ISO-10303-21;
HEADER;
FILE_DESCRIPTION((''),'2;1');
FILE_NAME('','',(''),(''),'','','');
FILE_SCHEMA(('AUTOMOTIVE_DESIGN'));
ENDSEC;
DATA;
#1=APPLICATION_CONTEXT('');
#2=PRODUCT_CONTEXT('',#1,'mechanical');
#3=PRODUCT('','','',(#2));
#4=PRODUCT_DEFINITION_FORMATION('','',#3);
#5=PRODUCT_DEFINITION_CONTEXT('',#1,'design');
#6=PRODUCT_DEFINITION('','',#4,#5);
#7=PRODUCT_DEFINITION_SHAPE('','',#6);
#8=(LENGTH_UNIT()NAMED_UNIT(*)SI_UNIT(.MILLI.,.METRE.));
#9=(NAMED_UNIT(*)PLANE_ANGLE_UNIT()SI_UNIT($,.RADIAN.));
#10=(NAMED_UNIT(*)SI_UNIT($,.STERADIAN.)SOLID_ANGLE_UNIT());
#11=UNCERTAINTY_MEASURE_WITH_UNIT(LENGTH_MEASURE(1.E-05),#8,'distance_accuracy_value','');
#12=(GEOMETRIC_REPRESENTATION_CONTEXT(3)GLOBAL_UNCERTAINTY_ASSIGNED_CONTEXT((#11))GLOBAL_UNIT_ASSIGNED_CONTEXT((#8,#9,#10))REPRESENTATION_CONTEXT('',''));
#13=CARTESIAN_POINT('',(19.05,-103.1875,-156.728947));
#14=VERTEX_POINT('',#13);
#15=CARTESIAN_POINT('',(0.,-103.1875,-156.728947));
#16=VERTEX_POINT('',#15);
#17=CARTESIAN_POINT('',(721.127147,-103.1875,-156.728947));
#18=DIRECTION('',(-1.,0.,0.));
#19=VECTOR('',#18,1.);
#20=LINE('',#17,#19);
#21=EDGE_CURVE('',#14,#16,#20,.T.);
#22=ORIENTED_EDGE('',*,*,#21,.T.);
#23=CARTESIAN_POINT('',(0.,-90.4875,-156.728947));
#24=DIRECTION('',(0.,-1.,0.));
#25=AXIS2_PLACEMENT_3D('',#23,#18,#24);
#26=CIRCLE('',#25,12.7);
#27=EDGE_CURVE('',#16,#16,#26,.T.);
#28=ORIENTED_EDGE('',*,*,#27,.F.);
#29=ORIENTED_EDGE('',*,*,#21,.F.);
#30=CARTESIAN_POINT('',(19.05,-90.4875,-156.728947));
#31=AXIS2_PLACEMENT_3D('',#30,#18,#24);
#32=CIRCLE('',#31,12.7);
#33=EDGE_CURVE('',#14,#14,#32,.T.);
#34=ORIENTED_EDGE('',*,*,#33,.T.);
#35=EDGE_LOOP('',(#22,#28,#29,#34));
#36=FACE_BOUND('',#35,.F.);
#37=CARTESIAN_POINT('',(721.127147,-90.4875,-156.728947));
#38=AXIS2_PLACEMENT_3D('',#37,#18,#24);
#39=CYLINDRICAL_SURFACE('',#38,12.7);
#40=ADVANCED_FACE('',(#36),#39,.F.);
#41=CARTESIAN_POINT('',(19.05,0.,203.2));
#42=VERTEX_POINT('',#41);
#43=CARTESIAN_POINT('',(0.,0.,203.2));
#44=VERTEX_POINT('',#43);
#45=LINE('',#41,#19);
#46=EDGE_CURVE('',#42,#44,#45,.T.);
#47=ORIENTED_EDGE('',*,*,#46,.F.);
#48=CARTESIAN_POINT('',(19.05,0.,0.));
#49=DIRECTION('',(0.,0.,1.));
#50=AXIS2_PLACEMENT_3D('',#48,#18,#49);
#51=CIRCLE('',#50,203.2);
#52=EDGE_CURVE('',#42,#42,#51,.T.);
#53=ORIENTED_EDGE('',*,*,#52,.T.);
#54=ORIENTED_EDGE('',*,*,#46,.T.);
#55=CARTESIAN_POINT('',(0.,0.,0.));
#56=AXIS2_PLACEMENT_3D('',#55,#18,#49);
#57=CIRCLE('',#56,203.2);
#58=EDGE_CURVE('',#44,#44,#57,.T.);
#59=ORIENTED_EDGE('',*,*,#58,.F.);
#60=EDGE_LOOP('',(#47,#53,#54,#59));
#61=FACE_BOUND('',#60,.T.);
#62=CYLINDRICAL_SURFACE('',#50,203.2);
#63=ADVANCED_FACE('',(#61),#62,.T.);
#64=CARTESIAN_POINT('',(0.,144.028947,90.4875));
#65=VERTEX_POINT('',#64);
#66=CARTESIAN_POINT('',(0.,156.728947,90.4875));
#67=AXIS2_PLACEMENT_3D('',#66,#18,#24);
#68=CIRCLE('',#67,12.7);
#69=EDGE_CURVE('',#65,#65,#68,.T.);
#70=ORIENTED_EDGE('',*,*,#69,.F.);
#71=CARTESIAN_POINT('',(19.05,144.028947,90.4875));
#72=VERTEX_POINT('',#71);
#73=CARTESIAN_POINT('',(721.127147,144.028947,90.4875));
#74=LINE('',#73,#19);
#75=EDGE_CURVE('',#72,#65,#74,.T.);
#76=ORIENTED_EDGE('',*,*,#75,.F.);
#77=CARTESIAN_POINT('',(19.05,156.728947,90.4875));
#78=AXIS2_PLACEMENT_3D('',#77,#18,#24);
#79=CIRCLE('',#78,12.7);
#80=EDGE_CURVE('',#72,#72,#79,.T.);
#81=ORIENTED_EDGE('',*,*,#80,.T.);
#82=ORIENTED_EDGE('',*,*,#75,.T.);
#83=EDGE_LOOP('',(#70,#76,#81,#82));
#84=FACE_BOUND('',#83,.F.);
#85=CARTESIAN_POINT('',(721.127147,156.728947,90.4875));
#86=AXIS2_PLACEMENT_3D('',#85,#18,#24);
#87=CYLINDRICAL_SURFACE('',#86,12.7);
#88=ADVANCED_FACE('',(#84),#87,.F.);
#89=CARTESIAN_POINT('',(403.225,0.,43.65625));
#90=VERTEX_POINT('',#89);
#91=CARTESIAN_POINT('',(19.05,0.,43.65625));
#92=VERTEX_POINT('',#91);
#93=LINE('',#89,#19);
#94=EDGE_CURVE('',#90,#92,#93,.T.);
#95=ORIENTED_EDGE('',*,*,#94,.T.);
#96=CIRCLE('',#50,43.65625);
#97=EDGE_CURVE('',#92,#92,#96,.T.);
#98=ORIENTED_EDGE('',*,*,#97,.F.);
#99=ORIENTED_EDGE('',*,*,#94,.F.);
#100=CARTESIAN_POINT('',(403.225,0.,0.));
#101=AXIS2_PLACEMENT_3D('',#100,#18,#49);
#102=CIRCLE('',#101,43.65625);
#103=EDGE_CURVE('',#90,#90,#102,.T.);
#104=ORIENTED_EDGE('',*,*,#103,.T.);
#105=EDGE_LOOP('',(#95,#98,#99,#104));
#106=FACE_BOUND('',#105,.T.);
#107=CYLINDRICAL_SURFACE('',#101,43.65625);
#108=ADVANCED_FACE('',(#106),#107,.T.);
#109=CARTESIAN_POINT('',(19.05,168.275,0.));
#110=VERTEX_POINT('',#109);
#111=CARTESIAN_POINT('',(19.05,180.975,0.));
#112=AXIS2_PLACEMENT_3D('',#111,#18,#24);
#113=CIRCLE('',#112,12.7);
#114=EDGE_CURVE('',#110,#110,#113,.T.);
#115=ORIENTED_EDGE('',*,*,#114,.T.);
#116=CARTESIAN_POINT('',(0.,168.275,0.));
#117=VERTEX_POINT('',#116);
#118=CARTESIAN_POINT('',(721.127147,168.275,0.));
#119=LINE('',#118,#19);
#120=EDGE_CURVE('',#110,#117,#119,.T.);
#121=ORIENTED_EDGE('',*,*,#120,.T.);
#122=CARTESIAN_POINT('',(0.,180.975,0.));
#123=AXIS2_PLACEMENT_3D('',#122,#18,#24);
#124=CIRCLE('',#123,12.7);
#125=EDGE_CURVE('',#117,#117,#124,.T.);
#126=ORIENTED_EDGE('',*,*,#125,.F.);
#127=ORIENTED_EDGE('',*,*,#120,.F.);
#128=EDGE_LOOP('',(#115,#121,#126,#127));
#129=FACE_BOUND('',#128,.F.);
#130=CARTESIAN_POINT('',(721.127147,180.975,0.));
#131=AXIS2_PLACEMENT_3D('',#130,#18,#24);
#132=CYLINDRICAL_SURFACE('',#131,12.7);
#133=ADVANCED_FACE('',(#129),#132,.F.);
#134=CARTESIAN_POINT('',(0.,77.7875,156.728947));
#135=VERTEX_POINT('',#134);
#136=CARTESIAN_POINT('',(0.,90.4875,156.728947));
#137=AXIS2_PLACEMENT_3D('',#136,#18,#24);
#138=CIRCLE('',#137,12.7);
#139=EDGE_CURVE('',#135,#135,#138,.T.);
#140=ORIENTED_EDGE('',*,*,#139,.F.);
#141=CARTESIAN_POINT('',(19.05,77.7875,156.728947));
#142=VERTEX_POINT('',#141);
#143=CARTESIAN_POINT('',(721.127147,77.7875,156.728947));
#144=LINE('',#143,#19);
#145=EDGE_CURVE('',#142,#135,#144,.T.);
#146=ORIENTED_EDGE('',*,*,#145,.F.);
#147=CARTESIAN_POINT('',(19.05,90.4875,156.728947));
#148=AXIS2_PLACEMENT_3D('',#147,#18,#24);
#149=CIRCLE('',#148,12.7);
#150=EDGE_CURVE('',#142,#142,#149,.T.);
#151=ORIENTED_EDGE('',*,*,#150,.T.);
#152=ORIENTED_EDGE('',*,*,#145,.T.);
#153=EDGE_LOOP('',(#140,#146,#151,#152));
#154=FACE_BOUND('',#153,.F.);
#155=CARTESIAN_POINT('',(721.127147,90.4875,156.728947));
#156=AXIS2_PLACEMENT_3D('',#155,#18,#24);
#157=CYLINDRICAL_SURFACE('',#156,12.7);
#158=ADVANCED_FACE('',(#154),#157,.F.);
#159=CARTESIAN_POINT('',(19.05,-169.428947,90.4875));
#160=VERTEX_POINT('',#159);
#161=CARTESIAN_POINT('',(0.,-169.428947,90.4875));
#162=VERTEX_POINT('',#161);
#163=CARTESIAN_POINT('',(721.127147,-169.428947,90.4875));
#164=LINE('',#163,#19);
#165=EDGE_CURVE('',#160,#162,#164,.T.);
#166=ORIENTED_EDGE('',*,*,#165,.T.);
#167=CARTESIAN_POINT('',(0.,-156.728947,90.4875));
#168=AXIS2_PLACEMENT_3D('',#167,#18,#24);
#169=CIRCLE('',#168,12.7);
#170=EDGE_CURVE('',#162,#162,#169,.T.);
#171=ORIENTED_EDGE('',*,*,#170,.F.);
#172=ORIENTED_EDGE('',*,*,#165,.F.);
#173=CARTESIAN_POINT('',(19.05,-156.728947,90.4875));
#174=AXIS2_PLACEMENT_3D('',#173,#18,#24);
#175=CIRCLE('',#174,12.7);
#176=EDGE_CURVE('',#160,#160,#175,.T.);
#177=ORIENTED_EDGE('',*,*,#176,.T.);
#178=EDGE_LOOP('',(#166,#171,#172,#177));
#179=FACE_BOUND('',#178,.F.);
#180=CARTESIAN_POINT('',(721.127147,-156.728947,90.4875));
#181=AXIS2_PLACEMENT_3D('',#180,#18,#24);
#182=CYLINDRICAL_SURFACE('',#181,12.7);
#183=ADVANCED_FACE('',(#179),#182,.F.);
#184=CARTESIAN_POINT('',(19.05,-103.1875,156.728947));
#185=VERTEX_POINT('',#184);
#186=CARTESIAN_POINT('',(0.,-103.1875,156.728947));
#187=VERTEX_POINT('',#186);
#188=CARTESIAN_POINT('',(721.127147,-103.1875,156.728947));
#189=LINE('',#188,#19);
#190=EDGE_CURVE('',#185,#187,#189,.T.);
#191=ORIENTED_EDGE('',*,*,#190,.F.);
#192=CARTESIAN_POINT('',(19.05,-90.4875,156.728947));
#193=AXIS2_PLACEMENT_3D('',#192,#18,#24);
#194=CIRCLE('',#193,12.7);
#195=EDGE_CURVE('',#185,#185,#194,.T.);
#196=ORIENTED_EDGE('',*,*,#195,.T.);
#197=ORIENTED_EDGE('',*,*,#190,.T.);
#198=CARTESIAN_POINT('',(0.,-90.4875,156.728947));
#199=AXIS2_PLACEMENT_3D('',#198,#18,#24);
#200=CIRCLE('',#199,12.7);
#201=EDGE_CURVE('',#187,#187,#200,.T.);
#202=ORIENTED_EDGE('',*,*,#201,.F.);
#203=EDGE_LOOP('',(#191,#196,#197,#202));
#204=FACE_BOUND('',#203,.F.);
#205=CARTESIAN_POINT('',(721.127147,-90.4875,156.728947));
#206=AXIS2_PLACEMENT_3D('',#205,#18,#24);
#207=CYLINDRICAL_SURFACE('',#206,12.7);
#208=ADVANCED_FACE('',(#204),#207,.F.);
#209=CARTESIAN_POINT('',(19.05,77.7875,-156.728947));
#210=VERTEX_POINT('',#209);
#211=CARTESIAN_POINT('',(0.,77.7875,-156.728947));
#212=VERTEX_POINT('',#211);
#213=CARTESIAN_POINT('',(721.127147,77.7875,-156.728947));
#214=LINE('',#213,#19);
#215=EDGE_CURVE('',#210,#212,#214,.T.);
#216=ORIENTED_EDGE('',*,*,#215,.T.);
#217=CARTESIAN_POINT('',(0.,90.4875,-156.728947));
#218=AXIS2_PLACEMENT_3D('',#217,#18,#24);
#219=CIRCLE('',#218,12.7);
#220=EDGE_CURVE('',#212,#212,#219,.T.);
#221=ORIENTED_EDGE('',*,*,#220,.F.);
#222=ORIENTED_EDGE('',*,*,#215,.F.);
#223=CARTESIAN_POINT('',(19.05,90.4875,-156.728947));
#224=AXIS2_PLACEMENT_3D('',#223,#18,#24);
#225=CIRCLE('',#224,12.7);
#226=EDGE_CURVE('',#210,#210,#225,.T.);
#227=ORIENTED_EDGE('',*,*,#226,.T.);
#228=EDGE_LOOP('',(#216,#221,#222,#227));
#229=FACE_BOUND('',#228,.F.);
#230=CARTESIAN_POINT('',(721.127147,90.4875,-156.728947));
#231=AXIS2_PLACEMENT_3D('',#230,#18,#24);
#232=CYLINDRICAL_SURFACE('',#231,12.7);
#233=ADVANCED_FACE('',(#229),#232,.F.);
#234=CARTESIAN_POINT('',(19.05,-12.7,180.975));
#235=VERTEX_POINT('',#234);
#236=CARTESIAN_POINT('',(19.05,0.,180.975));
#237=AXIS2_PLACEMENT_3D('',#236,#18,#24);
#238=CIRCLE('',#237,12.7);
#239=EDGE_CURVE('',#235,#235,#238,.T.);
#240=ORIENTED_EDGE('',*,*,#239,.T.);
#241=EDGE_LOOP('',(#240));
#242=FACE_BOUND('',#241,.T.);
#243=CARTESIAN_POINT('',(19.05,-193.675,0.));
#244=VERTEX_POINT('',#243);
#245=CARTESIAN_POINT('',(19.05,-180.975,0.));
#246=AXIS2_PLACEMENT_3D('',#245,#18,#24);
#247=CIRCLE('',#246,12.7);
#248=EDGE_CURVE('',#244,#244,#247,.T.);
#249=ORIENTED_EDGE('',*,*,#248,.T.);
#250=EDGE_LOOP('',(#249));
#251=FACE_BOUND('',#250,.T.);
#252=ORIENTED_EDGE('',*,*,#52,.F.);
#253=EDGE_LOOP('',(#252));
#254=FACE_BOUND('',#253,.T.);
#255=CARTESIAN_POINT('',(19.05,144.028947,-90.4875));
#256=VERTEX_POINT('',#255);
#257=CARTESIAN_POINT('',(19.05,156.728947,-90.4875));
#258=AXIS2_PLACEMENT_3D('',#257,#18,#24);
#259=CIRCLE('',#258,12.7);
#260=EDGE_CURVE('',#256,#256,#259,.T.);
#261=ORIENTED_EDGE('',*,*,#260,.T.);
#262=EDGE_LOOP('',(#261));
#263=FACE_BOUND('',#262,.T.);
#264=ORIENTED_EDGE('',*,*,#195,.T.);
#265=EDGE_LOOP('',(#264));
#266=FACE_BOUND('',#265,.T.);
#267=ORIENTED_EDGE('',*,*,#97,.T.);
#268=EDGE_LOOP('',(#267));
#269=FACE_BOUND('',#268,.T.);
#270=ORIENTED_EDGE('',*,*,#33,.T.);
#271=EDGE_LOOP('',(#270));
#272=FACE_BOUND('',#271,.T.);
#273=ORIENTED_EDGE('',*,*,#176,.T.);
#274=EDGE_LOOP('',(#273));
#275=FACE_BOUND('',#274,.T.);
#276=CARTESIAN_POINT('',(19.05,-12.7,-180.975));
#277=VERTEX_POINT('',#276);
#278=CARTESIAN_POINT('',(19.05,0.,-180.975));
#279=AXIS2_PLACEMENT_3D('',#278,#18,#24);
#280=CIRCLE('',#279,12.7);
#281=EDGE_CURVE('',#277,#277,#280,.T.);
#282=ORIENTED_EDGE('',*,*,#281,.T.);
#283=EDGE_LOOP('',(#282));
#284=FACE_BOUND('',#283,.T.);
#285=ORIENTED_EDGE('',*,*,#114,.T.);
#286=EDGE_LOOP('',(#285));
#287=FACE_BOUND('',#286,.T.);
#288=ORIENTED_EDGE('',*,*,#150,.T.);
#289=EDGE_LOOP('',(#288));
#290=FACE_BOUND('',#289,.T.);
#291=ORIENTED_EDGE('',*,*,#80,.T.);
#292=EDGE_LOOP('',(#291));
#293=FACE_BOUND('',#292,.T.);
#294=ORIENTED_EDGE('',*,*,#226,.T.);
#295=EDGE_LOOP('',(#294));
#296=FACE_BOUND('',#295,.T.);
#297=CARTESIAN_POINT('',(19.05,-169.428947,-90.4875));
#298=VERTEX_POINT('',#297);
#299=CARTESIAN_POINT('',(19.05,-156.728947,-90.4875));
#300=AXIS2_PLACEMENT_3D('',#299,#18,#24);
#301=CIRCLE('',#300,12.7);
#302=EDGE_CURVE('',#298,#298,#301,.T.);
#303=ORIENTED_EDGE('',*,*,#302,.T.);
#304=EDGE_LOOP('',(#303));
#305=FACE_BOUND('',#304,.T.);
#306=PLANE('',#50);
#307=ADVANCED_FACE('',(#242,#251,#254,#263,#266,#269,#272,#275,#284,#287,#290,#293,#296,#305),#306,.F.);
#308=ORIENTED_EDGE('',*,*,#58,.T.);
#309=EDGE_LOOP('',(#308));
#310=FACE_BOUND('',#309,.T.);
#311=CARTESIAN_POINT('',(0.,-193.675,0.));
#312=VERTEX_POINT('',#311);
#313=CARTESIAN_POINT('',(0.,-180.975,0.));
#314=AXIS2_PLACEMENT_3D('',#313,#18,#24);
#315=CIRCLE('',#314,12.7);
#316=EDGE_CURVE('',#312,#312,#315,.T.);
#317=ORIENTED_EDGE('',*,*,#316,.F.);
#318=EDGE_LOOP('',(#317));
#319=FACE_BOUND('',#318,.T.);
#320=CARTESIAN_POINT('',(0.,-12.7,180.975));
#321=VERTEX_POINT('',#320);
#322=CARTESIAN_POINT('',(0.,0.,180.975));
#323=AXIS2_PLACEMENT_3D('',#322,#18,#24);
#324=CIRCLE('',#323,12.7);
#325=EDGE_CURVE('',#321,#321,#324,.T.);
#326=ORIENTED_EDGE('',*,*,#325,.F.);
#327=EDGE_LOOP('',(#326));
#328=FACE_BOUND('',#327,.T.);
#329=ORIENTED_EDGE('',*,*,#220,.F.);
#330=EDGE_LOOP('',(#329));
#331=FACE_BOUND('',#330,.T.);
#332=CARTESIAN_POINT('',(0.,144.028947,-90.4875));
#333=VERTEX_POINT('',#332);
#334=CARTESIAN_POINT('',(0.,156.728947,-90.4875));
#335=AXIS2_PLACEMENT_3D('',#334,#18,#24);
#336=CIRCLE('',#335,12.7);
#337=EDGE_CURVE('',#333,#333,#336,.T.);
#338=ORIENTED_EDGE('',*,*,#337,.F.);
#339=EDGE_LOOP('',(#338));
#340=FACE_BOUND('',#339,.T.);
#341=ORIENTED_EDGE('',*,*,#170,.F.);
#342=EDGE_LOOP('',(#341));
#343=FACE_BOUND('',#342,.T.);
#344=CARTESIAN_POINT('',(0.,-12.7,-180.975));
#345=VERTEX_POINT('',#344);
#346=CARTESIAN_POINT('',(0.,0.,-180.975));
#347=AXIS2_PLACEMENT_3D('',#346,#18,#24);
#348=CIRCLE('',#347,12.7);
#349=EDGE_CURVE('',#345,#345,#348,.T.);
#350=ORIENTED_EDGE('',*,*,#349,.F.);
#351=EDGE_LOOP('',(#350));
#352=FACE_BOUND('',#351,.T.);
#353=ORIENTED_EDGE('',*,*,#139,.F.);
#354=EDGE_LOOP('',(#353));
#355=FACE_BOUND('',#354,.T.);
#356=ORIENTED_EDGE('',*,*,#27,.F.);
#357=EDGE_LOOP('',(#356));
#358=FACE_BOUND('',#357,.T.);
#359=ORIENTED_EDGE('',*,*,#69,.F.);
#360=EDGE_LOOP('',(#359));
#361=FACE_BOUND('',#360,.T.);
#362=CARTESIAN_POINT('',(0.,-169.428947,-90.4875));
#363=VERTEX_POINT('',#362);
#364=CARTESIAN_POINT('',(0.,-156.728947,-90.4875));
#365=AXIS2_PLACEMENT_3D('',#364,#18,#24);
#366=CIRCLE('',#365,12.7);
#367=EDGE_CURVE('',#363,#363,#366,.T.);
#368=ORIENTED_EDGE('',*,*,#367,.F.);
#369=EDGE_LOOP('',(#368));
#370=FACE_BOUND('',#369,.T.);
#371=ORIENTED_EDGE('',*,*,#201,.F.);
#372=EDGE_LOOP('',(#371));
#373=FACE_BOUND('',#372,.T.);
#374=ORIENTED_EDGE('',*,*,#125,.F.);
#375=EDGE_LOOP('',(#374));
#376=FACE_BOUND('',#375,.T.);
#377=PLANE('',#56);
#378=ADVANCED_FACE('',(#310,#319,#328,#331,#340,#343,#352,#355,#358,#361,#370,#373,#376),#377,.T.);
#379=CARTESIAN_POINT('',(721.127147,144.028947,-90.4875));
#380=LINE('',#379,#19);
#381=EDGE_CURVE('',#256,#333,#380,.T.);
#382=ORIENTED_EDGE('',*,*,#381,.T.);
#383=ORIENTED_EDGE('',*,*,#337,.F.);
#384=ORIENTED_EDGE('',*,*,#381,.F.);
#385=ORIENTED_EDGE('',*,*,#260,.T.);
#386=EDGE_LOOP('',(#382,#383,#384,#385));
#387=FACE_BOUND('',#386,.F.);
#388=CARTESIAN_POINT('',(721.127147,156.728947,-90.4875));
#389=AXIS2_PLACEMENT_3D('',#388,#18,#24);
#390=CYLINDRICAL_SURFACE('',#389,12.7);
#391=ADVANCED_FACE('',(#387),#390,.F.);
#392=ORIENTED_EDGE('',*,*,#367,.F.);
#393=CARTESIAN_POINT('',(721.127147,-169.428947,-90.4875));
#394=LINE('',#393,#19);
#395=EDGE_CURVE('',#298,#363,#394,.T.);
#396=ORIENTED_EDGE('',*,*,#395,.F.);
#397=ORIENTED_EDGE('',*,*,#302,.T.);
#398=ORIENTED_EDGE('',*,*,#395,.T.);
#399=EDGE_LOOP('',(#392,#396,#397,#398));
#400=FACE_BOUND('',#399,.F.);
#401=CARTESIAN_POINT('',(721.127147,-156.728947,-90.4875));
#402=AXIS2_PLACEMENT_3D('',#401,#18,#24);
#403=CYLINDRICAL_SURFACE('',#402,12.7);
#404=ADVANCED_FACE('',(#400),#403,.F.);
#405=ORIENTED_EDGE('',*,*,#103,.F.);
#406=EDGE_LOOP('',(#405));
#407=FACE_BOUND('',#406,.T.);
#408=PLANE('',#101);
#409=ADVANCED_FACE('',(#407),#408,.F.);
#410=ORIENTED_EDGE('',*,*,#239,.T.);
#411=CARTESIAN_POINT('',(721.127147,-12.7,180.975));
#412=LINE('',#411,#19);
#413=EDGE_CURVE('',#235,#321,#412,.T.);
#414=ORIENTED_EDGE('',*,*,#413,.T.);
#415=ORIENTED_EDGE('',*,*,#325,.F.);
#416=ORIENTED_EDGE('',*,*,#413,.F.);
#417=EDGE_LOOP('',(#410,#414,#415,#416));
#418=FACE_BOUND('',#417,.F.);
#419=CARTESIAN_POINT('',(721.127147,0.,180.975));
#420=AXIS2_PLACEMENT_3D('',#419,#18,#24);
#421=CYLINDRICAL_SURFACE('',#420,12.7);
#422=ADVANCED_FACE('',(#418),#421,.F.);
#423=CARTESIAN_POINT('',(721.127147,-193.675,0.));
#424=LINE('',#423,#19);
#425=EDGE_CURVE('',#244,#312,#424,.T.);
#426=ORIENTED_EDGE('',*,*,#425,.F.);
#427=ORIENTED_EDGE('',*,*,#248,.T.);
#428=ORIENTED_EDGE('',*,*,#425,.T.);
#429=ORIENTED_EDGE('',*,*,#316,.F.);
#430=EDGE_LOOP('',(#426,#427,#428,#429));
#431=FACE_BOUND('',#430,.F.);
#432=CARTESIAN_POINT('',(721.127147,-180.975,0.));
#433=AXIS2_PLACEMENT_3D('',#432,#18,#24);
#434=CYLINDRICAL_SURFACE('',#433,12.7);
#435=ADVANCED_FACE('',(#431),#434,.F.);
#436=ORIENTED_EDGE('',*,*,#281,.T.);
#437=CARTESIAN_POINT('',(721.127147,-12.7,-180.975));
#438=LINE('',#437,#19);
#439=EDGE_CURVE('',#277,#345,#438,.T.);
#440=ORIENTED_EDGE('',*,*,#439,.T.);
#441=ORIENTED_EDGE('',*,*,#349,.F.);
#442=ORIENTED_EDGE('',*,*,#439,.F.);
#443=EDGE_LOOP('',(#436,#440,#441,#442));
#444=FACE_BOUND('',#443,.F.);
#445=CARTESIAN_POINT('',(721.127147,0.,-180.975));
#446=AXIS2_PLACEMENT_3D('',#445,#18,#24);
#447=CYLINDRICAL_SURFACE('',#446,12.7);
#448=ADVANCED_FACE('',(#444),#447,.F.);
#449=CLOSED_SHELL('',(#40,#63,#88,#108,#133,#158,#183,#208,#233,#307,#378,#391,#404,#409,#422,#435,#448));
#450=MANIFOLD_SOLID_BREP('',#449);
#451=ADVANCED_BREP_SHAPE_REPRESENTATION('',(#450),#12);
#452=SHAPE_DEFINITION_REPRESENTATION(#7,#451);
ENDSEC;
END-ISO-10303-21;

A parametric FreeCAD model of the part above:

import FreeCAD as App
import Part
import Sketcher

V = App.Vector
Q = App.Units.Quantity


def add_polygon(sketch, points):
    """Adds a closed chain of lines whose ends are joined by coincident constraints."""
    first, n = sketch.GeometryCount, len(points)
    for a, b in zip(points, points[1:] + points[:1]):
        sketch.addGeometry(Part.LineSegment(App.Vector(*a, 0), App.Vector(*b, 0)), False)
    for i in range(n):
        sketch.addConstraint(Sketcher.Constraint("Coincident", first + i, 2, first + (i + 1) % n, 1))

doc = App.newDocument("Part")
body = doc.addObject("PartDesign::Body", "Body")

# Sketch on XZ plane
sketch1 = body.newObject("Sketcher::SketchObject", "Sketch")
sketch1.AttachmentSupport = (doc.getObject("XZ_Plane"), [""])
sketch1.MapMode = "FlatFace"
add_polygon(sketch1, [(0, 203), (0, 0), (403, 0), (403, 44), (19, 44), (19, 203)])  # lines 0-5
sketch1.addConstraint([
    Sketcher.Constraint("Vertical", 0),
    Sketcher.Constraint("Horizontal", 1),
    Sketcher.Constraint("Vertical", 2),
    Sketcher.Constraint("Horizontal", 3),
    Sketcher.Constraint("Vertical", 4),
    Sketcher.Constraint("Horizontal", 5),
    Sketcher.Constraint("Coincident", 0, 2, -1, 1),
    Sketcher.Constraint("DistanceY", 0, 2, 0, 1, Q("8 in")),
    Sketcher.Constraint("DistanceX", 5, 2, 5, 1, Q("0.75 in")),
    Sketcher.Constraint("DistanceX", 1, 1, 1, 2, Q("15.875 in")),
    Sketcher.Constraint("DistanceY", 2, 1, 2, 2, Q("1.71875 in")),
])
revolution = body.newObject("PartDesign::Revolution", "Revolution")
revolution.Profile = sketch1
revolution.ReferenceAxis = (sketch1, ["H_Axis"])
revolution.Angle = 360

# Sketch on YZ plane
sketch2 = body.newObject("Sketcher::SketchObject", "Sketch001")
sketch2.AttachmentSupport = (doc.getObject("YZ_Plane"), [""])
sketch2.MapMode = "FlatFace"
sketch2.AttachmentOffset = App.Placement(V(0, 0, 0.75 * 25.4), App.Rotation())
sketch2.addGeometry([
    Part.Circle(V(0, 181, 0), V(0, 0, 1), 13),  # 0
    Part.Circle(V(90, 157, 0), V(0, 0, 1), 13),  # 1
    Part.Circle(V(157, 90, 0), V(0, 0, 1), 13),  # 2
    Part.Circle(V(181, 0, 0), V(0, 0, 1), 13),  # 3
    Part.Circle(V(157, -90, 0), V(0, 0, 1), 13),  # 4
    Part.Circle(V(90, -157, 0), V(0, 0, 1), 13),  # 5
    Part.Circle(V(0, -181, 0), V(0, 0, 1), 13),  # 6
    Part.Circle(V(-90, -157, 0), V(0, 0, 1), 13),  # 7
    Part.Circle(V(-157, -90, 0), V(0, 0, 1), 13),  # 8
    Part.Circle(V(-181, 0, 0), V(0, 0, 1), 13),  # 9
    Part.Circle(V(-157, 90, 0), V(0, 0, 1), 13),  # 10
    Part.Circle(V(-90, 157, 0), V(0, 0, 1), 13),  # 11
], False)
sketch2.addConstraint([
    Sketcher.Constraint("Equal", 0, 1),
    Sketcher.Constraint("Equal", 1, 2),
    Sketcher.Constraint("Equal", 2, 3),
    Sketcher.Constraint("Equal", 3, 4),
    Sketcher.Constraint("Equal", 4, 5),
    Sketcher.Constraint("Equal", 5, 6),
    Sketcher.Constraint("Equal", 6, 7),
    Sketcher.Constraint("Equal", 7, 8),
    Sketcher.Constraint("Equal", 8, 9),
    Sketcher.Constraint("Equal", 9, 10),
    Sketcher.Constraint("Equal", 10, 11),
    Sketcher.Constraint("Symmetric", 0, 3, 6, 3, -1, 1),
    Sketcher.Constraint("Symmetric", 1, 3, 7, 3, -1, 1),
    Sketcher.Constraint("Symmetric", 2, 3, 8, 3, -1, 1),
    Sketcher.Constraint("Symmetric", 3, 3, 9, 3, -1, 1),
    Sketcher.Constraint("Symmetric", 4, 3, 10, 3, -1, 1),
    Sketcher.Constraint("Symmetric", 5, 3, 11, 3, -1, 1),
    Sketcher.Constraint("Symmetric", 5, 3, 7, 3, -2),
    Sketcher.Constraint("Symmetric", 4, 3, 8, 3, -2),
    Sketcher.Constraint("PointOnObject", 0, 3, -2),
    Sketcher.Constraint("PointOnObject", 3, 3, -1),
    Sketcher.Constraint("Diameter", 0, Q("1 in")),
    Sketcher.Constraint("DistanceY", -1, 1, 0, 3, Q("7.125 in")),
    Sketcher.Constraint("DistanceX", -1, 1, 1, 3, Q("3.5625 in")),
    Sketcher.Constraint("DistanceY", -1, 1, 2, 3, Q("3.5625 in")),
    Sketcher.Constraint("DistanceX", -1, 1, 3, 3, Q("7.125 in")),
    Sketcher.Constraint("DistanceY", -1, 1, 1, 3, Q("156.728947 mm")),
    Sketcher.Constraint("DistanceX", -1, 1, 2, 3, Q("156.728947 mm")),
])
doc.recompute()
hole = body.newObject("PartDesign::Hole", "Hole")
hole.Profile = sketch2
hole.ThreadType = "None"
hole.Diameter = Q("1 in")
hole.DepthType = "ThroughAll"

doc.recompute()
